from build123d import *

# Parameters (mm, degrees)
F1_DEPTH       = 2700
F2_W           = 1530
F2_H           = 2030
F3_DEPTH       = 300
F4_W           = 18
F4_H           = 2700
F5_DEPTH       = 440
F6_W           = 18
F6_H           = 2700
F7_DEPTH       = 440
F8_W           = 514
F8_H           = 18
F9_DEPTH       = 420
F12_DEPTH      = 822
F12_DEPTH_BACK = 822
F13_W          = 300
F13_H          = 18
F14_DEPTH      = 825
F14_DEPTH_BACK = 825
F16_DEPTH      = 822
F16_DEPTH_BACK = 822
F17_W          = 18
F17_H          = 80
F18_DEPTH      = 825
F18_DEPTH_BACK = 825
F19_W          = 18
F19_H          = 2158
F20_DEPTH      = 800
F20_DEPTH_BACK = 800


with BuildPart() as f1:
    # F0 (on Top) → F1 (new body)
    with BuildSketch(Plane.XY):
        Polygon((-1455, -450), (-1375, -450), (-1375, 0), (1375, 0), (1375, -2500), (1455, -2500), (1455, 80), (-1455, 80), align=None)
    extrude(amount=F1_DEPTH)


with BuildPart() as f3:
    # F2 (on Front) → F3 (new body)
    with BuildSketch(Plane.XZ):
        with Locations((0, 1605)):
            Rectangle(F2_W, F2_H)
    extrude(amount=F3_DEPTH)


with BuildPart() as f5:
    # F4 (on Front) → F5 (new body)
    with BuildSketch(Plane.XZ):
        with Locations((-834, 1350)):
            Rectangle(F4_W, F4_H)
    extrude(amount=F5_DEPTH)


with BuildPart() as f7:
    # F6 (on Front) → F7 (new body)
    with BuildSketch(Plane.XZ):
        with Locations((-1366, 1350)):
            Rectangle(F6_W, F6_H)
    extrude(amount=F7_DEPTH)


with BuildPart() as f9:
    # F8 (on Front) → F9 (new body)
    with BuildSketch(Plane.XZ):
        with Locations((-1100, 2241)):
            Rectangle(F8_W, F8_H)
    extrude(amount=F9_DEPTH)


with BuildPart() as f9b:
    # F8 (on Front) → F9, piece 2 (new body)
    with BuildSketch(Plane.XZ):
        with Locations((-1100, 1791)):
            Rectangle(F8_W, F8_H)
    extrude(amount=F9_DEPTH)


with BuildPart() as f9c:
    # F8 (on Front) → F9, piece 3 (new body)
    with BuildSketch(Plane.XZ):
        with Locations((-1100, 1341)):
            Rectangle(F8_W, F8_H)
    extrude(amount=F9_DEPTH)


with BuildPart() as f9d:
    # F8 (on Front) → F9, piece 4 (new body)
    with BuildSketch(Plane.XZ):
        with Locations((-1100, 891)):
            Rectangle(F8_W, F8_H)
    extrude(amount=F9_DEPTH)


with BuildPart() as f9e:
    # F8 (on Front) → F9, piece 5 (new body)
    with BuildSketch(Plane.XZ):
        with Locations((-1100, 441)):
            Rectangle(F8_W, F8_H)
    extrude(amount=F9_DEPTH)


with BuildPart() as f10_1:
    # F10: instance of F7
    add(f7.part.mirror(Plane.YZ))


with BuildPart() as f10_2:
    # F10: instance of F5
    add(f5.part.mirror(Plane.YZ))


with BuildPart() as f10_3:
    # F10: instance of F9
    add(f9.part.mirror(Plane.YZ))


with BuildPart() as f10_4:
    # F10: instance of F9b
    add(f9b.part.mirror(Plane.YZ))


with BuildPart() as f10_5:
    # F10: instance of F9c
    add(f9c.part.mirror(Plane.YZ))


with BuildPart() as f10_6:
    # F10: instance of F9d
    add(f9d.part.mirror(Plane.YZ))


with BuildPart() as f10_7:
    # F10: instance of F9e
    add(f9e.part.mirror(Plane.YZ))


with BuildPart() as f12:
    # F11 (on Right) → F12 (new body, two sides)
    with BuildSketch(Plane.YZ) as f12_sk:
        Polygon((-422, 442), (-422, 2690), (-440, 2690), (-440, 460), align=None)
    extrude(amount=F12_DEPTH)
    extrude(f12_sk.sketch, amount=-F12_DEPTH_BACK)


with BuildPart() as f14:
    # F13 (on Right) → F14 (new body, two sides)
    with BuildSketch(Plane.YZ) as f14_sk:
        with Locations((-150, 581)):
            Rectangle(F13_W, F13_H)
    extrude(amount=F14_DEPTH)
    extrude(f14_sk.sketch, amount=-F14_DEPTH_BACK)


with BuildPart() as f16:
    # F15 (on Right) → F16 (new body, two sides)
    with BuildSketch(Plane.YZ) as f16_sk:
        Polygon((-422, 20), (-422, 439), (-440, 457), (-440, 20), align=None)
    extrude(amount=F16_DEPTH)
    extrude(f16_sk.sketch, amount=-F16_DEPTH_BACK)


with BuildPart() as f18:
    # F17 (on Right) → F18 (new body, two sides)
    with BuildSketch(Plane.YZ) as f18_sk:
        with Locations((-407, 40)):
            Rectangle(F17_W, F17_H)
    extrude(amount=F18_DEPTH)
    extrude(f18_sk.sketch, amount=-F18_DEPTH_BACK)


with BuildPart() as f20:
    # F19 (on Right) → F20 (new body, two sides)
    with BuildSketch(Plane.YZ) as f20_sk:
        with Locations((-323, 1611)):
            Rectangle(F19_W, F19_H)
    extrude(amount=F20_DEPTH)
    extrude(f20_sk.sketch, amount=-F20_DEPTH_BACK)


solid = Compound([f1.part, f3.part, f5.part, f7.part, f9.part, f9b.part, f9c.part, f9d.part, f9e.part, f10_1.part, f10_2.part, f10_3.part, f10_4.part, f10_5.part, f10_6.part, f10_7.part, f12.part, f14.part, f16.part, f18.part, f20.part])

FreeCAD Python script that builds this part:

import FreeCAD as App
import Part
import Sketcher
from FreeCAD import Vector


def add_polygon(sketch, points):
    """Adds a closed chain of lines whose ends are joined by coincident constraints."""
    first, n = sketch.GeometryCount, len(points)
    for a, b in zip(points, points[1:] + points[:1]):
        sketch.addGeometry(Part.LineSegment(App.Vector(*a, 0), App.Vector(*b, 0)), False)
    for i in range(n):
        sketch.addConstraint(Sketcher.Constraint("Coincident", first + i, 2, first + (i + 1) % n, 1))

doc = App.newDocument("Part")
body = doc.addObject("PartDesign::Body", "Body")

sketch1 = doc.addObject("Sketcher::SketchObject", "Sketch")
body.addObject(sketch1)
sketch1.AttachmentSupport = (doc.XY_Plane, [""])
sketch1.MapMode = "FlatFace"
add_polygon(sketch1, [(-1455, -450), (-1375, -450), (-1375, 0), (1375, 0), (1375, -2500), (1455, -2500), (1455, 80), (-1455, 80)])
sketch1.addConstraint(Sketcher.Constraint("Horizontal", 0))
sketch1.addConstraint(Sketcher.Constraint("Vertical", 1))
sketch1.addConstraint(Sketcher.Constraint("Horizontal", 2))
sketch1.addConstraint(Sketcher.Constraint("Vertical", 3))
sketch1.addConstraint(Sketcher.Constraint("Horizontal", 4))
sketch1.addConstraint(Sketcher.Constraint("Vertical", 5))
sketch1.addConstraint(Sketcher.Constraint("Horizontal", 6))
sketch1.addConstraint(Sketcher.Constraint("Vertical", 7))
sketch1.addConstraint(Sketcher.Constraint("Symmetric", 1, 2, 2, 2, -1, 1))
sketch1.addConstraint(Sketcher.Constraint("Equal", 0, 4))
sketch1.addConstraint(Sketcher.Constraint("DistanceX", 0, 1, 0, 2, 80.0))
sketch1.addConstraint(Sketcher.Constraint("DistanceX", 2, 1, 2, 2, 2750.0))
sketch1.addConstraint(Sketcher.Constraint("DistanceY", 1, 1, 1, 2, 450.0))
sketch1.addConstraint(Sketcher.Constraint("DistanceY", 3, 2, 3, 1, 2500.0))
sketch1.addConstraint(Sketcher.Constraint("DistanceY", 5, 1, 5, 2, 2580.0))
pad1 = doc.addObject("PartDesign::Pad", "Pad")
body.addObject(pad1)
pad1.Profile = sketch1
pad1.Length = 2700
body2 = doc.addObject("PartDesign::Body", "Body001")

sketch2 = doc.addObject("Sketcher::SketchObject", "Sketch001")
body2.addObject(sketch2)
sketch2.AttachmentSupport = (doc.getObject("XZ_Plane001"), [""])
sketch2.MapMode = "FlatFace"
add_polygon(sketch2, [(-765, 2620), (-765, 590), (765, 590), (765, 2620)])
sketch2.addConstraint(Sketcher.Constraint("Vertical", 0))
sketch2.addConstraint(Sketcher.Constraint("Horizontal", 1))
sketch2.addConstraint(Sketcher.Constraint("Vertical", 2))
sketch2.addConstraint(Sketcher.Constraint("Horizontal", 3))
sketch2.addConstraint(Sketcher.Constraint("DistanceX", 1, 1, 1, 2, 1530.0))
sketch2.addConstraint(Sketcher.Constraint("DistanceY", 0, 2, 0, 1, 2030.0))
sketch2.addConstraint(Sketcher.Constraint("DistanceX", 0, 2, -1, 1, 765.0))
sketch2.addConstraint(Sketcher.Constraint("DistanceY", -1, 1, 0, 2, 590.0))
pad2 = doc.addObject("PartDesign::Pad", "Pad001")
body2.addObject(pad2)
pad2.Profile = sketch2
pad2.Length = 300
body3 = doc.addObject("PartDesign::Body", "Body002")

sketch3 = doc.addObject("Sketcher::SketchObject", "Sketch002")
body3.addObject(sketch3)
sketch3.AttachmentSupport = (doc.getObject("XZ_Plane002"), [""])
sketch3.MapMode = "FlatFace"
add_polygon(sketch3, [(-843, 2700), (-843, 0), (-825, 0), (-825, 2700)])
sketch3.addConstraint(Sketcher.Constraint("Vertical", 0))
sketch3.addConstraint(Sketcher.Constraint("Horizontal", 1))
sketch3.addConstraint(Sketcher.Constraint("Vertical", 2))
sketch3.addConstraint(Sketcher.Constraint("Horizontal", 3))
sketch3.addConstraint(Sketcher.Constraint("PointOnObject", 0, 2, -1))
sketch3.addConstraint(Sketcher.Constraint("DistanceX", 1, 1, 1, 2, 18.0))
sketch3.addConstraint(Sketcher.Constraint("DistanceY", 0, 2, 0, 1, 2700.0))
sketch3.addConstraint(Sketcher.Constraint("DistanceX", 0, 2, -1, 1, 843.0))
pad3 = doc.addObject("PartDesign::Pad", "Pad002")
body3.addObject(pad3)
pad3.Profile = sketch3
pad3.Length = 440
body4 = doc.addObject("PartDesign::Body", "Body003")

sketch4 = doc.addObject("Sketcher::SketchObject", "Sketch003")
body4.addObject(sketch4)
sketch4.AttachmentSupport = (doc.getObject("XZ_Plane003"), [""])
sketch4.MapMode = "FlatFace"
add_polygon(sketch4, [(-1375, 2700), (-1375, 0), (-1357, 0), (-1357, 2700)])
sketch4.addConstraint(Sketcher.Constraint("Vertical", 0))
sketch4.addConstraint(Sketcher.Constraint("Horizontal", 1))
sketch4.addConstraint(Sketcher.Constraint("Vertical", 2))
sketch4.addConstraint(Sketcher.Constraint("Horizontal", 3))
sketch4.addConstraint(Sketcher.Constraint("PointOnObject", 0, 2, -1))
sketch4.addConstraint(Sketcher.Constraint("DistanceX", 1, 1, 1, 2, 18.0))
sketch4.addConstraint(Sketcher.Constraint("DistanceY", 0, 2, 0, 1, 2700.0))
sketch4.addConstraint(Sketcher.Constraint("DistanceX", 0, 2, -1, 1, 1375.0))
pad4 = doc.addObject("PartDesign::Pad", "Pad003")
body4.addObject(pad4)
pad4.Profile = sketch4
pad4.Length = 440
body5 = doc.addObject("PartDesign::Body", "Body004")

sketch5 = doc.addObject("Sketcher::SketchObject", "Sketch004")
body5.addObject(sketch5)
sketch5.AttachmentSupport = (doc.getObject("XZ_Plane004"), [""])
sketch5.MapMode = "FlatFace"
add_polygon(sketch5, [(-1357, 2250), (-1357, 2232), (-843, 2232), (-843, 2250)])
sketch5.addConstraint(Sketcher.Constraint("Vertical", 0))
sketch5.addConstraint(Sketcher.Constraint("Horizontal", 1))
sketch5.addConstraint(Sketcher.Constraint("Vertical", 2))
sketch5.addConstraint(Sketcher.Constraint("Horizontal", 3))
sketch5.addConstraint(Sketcher.Constraint("DistanceX", 1, 1, 1, 2, 514.0))
sketch5.addConstraint(Sketcher.Constraint("DistanceY", 0, 2, 0, 1, 18.0))
sketch5.addConstraint(Sketcher.Constraint("DistanceX", 0, 2, -1, 1, 1357.0))
sketch5.addConstraint(Sketcher.Constraint("DistanceY", -1, 1, 0, 2, 2232.0))
pad5 = doc.addObject("PartDesign::Pad", "Pad004")
body5.addObject(pad5)
pad5.Profile = sketch5
pad5.Length = 420
body6 = doc.addObject("PartDesign::Body", "Body005")

sketch6 = doc.addObject("Sketcher::SketchObject", "Sketch005")
body6.addObject(sketch6)
sketch6.AttachmentSupport = (doc.getObject("XZ_Plane005"), [""])
sketch6.MapMode = "FlatFace"
add_polygon(sketch6, [(-1357, 1800), (-1357, 1782), (-843, 1782), (-843, 1800)])
sketch6.addConstraint(Sketcher.Constraint("Vertical", 0))
sketch6.addConstraint(Sketcher.Constraint("Horizontal", 1))
sketch6.addConstraint(Sketcher.Constraint("Vertical", 2))
sketch6.addConstraint(Sketcher.Constraint("Horizontal", 3))
sketch6.addConstraint(Sketcher.Constraint("DistanceX", 1, 1, 1, 2, 514.0))
sketch6.addConstraint(Sketcher.Constraint("DistanceY", 0, 2, 0, 1, 18.0))
sketch6.addConstraint(Sketcher.Constraint("DistanceX", 0, 2, -1, 1, 1357.0))
sketch6.addConstraint(Sketcher.Constraint("DistanceY", -1, 1, 0, 2, 1782.0))
pad6 = doc.addObject("PartDesign::Pad", "Pad005")
body6.addObject(pad6)
pad6.Profile = sketch6
pad6.Length = 420
body7 = doc.addObject("PartDesign::Body", "Body006")

sketch7 = doc.addObject("Sketcher::SketchObject", "Sketch006")
body7.addObject(sketch7)
sketch7.AttachmentSupport = (doc.getObject("XZ_Plane006"), [""])
sketch7.MapMode = "FlatFace"
add_polygon(sketch7, [(-1357, 1350), (-1357, 1332), (-843, 1332), (-843, 1350)])
sketch7.addConstraint(Sketcher.Constraint("Vertical", 0))
sketch7.addConstraint(Sketcher.Constraint("Horizontal", 1))
sketch7.addConstraint(Sketcher.Constraint("Vertical", 2))
sketch7.addConstraint(Sketcher.Constraint("Horizontal", 3))
sketch7.addConstraint(Sketcher.Constraint("DistanceX", 1, 1, 1, 2, 514.0))
sketch7.addConstraint(Sketcher.Constraint("DistanceY", 0, 2, 0, 1, 18.0))
sketch7.addConstraint(Sketcher.Constraint("DistanceX", 0, 2, -1, 1, 1357.0))
sketch7.addConstraint(Sketcher.Constraint("DistanceY", -1, 1, 0, 2, 1332.0))
pad7 = doc.addObject("PartDesign::Pad", "Pad006")
body7.addObject(pad7)
pad7.Profile = sketch7
pad7.Length = 420
body8 = doc.addObject("PartDesign::Body", "Body007")

sketch8 = doc.addObject("Sketcher::SketchObject", "Sketch007")
body8.addObject(sketch8)
sketch8.AttachmentSupport = (doc.getObject("XZ_Plane007"), [""])
sketch8.MapMode = "FlatFace"
add_polygon(sketch8, [(-1357, 900), (-1357, 882), (-843, 882), (-843, 900)])
sketch8.addConstraint(Sketcher.Constraint("Vertical", 0))
sketch8.addConstraint(Sketcher.Constraint("Horizontal", 1))
sketch8.addConstraint(Sketcher.Constraint("Vertical", 2))
sketch8.addConstraint(Sketcher.Constraint("Horizontal", 3))
sketch8.addConstraint(Sketcher.Constraint("DistanceX", 1, 1, 1, 2, 514.0))
sketch8.addConstraint(Sketcher.Constraint("DistanceY", 0, 2, 0, 1, 18.0))
sketch8.addConstraint(Sketcher.Constraint("DistanceX", 0, 2, -1, 1, 1357.0))
sketch8.addConstraint(Sketcher.Constraint("DistanceY", -1, 1, 0, 2, 882.0))
pad8 = doc.addObject("PartDesign::Pad", "Pad007")
body8.addObject(pad8)
pad8.Profile = sketch8
pad8.Length = 420
body9 = doc.addObject("PartDesign::Body", "Body008")

sketch9 = doc.addObject("Sketcher::SketchObject", "Sketch008")
body9.addObject(sketch9)
sketch9.AttachmentSupport = (doc.getObject("XZ_Plane008"), [""])
sketch9.MapMode = "FlatFace"
add_polygon(sketch9, [(-1357, 450), (-1357, 432), (-843, 432), (-843, 450)])
sketch9.addConstraint(Sketcher.Constraint("Vertical", 0))
sketch9.addConstraint(Sketcher.Constraint("Horizontal", 1))
sketch9.addConstraint(Sketcher.Constraint("Vertical", 2))
sketch9.addConstraint(Sketcher.Constraint("Horizontal", 3))
sketch9.addConstraint(Sketcher.Constraint("DistanceX", 1, 1, 1, 2, 514.0))
sketch9.addConstraint(Sketcher.Constraint("DistanceY", 0, 2, 0, 1, 18.0))
sketch9.addConstraint(Sketcher.Constraint("DistanceX", 0, 2, -1, 1, 1357.0))
sketch9.addConstraint(Sketcher.Constraint("DistanceY", -1, 1, 0, 2, 432.0))
pad9 = doc.addObject("PartDesign::Pad", "Pad008")
body9.addObject(pad9)
pad9.Profile = sketch9
pad9.Length = 420
body10 = doc.addObject("PartDesign::Body", "Body009")
doc.recompute()

mirroring = doc.addObject("Part::Mirroring", "Mirroring")
mirroring.Source = body4
mirroring.Base = Vector(0, 0, 0)
mirroring.Normal = Vector(1, 0, 0)
body10.BaseFeature = mirroring
doc.recompute()
body11 = doc.addObject("PartDesign::Body", "Body010")
doc.recompute()

mirroring2 = doc.addObject("Part::Mirroring", "Mirroring001")
mirroring2.Source = body3
mirroring2.Base = Vector(0, 0, 0)
mirroring2.Normal = Vector(1, 0, 0)
body11.BaseFeature = mirroring2
doc.recompute()
body12 = doc.addObject("PartDesign::Body", "Body011")
doc.recompute()

mirroring3 = doc.addObject("Part::Mirroring", "Mirroring002")
mirroring3.Source = body5
mirroring3.Base = Vector(0, 0, 0)
mirroring3.Normal = Vector(1, 0, 0)
body12.BaseFeature = mirroring3
doc.recompute()
body13 = doc.addObject("PartDesign::Body", "Body012")
doc.recompute()

mirroring4 = doc.addObject("Part::Mirroring", "Mirroring003")
mirroring4.Source = body6
mirroring4.Base = Vector(0, 0, 0)
mirroring4.Normal = Vector(1, 0, 0)
body13.BaseFeature = mirroring4
doc.recompute()
body14 = doc.addObject("PartDesign::Body", "Body013")
doc.recompute()

mirroring5 = doc.addObject("Part::Mirroring", "Mirroring004")
mirroring5.Source = body7
mirroring5.Base = Vector(0, 0, 0)
mirroring5.Normal = Vector(1, 0, 0)
body14.BaseFeature = mirroring5
doc.recompute()
body15 = doc.addObject("PartDesign::Body", "Body014")
doc.recompute()

mirroring6 = doc.addObject("Part::Mirroring", "Mirroring005")
mirroring6.Source = body8
mirroring6.Base = Vector(0, 0, 0)
mirroring6.Normal = Vector(1, 0, 0)
body15.BaseFeature = mirroring6
doc.recompute()
body16 = doc.addObject("PartDesign::Body", "Body015")
doc.recompute()

mirroring7 = doc.addObject("Part::Mirroring", "Mirroring006")
mirroring7.Source = body9
mirroring7.Base = Vector(0, 0, 0)
mirroring7.Normal = Vector(1, 0, 0)
body16.BaseFeature = mirroring7
doc.recompute()
body17 = doc.addObject("PartDesign::Body", "Body016")

sketch10 = doc.addObject("Sketcher::SketchObject", "Sketch009")
body17.addObject(sketch10)
sketch10.AttachmentSupport = (doc.getObject("YZ_Plane016"), [""])
sketch10.MapMode = "FlatFace"
add_polygon(sketch10, [(-422, 442), (-422, 2690), (-440, 2690), (-440, 460)])
sketch10.addConstraint(Sketcher.Constraint("Vertical", 0))
sketch10.addConstraint(Sketcher.Constraint("Horizontal", 1))
sketch10.addConstraint(Sketcher.Constraint("Vertical", 2))
sketch10.addConstraint(Sketcher.Constraint("DistanceX", 1, 2, 1, 1, 18.0))
sketch10.addConstraint(Sketcher.Constraint("DistanceY", 0, 1, 0, 2, 2248.0))
sketch10.addConstraint(Sketcher.Constraint("DistanceY", 2, 2, 2, 1, 2230.0))
sketch10.addConstraint(Sketcher.Constraint("DistanceX", 0, 2, -1, 1, 422.0))
sketch10.addConstraint(Sketcher.Constraint("DistanceY", -1, 1, 0, 2, 2690.0))
pad10 = doc.addObject("PartDesign::Pad", "Pad009")
body17.addObject(pad10)
pad10.Profile = sketch10
pad10.Type = "TwoLengths"
pad10.Length = 822
pad10.Length2 = 822
body18 = doc.addObject("PartDesign::Body", "Body017")

sketch11 = doc.addObject("Sketcher::SketchObject", "Sketch010")
body18.addObject(sketch11)
sketch11.AttachmentSupport = (doc.getObject("YZ_Plane017"), [""])
sketch11.MapMode = "FlatFace"
add_polygon(sketch11, [(-300, 590), (-300, 572), (0, 572), (0, 590)])
sketch11.addConstraint(Sketcher.Constraint("Vertical", 0))
sketch11.addConstraint(Sketcher.Constraint("Horizontal", 1))
sketch11.addConstraint(Sketcher.Constraint("Vertical", 2))
sketch11.addConstraint(Sketcher.Constraint("Horizontal", 3))
sketch11.addConstraint(Sketcher.Constraint("PointOnObject", 1, 2, -2))
sketch11.addConstraint(Sketcher.Constraint("DistanceX", 1, 1, 1, 2, 300.0))
sketch11.addConstraint(Sketcher.Constraint("DistanceY", 0, 2, 0, 1, 18.0))
sketch11.addConstraint(Sketcher.Constraint("DistanceY", -1, 1, 0, 2, 572.0))
pad11 = doc.addObject("PartDesign::Pad", "Pad010")
body18.addObject(pad11)
pad11.Profile = sketch11
pad11.Type = "TwoLengths"
pad11.Length = 825
pad11.Length2 = 825
body19 = doc.addObject("PartDesign::Body", "Body018")

sketch12 = doc.addObject("Sketcher::SketchObject", "Sketch011")
body19.addObject(sketch12)
sketch12.AttachmentSupport = (doc.getObject("YZ_Plane018"), [""])
sketch12.MapMode = "FlatFace"
add_polygon(sketch12, [(-422, 20), (-422, 439), (-440, 457), (-440, 20)])
sketch12.addConstraint(Sketcher.Constraint("Vertical", 0))
sketch12.addConstraint(Sketcher.Constraint("Vertical", 2))
sketch12.addConstraint(Sketcher.Constraint("Horizontal", 3))
sketch12.addConstraint(Sketcher.Constraint("DistanceX", 3, 1, 3, 2, 18.0))
sketch12.addConstraint(Sketcher.Constraint("DistanceY", 0, 1, 0, 2, 419.0))
sketch12.addConstraint(Sketcher.Constraint("DistanceY", 2, 2, 2, 1, 437.0))
sketch12.addConstraint(Sketcher.Constraint("DistanceX", 0, 2, -1, 1, 422.0))
sketch12.addConstraint(Sketcher.Constraint("DistanceY", -1, 1, 0, 2, 439.0))
pad12 = doc.addObject("PartDesign::Pad", "Pad011")
body19.addObject(pad12)
pad12.Profile = sketch12
pad12.Type = "TwoLengths"
pad12.Length = 822
pad12.Length2 = 822
body20 = doc.addObject("PartDesign::Body", "Body019")

sketch13 = doc.addObject("Sketcher::SketchObject", "Sketch012")
body20.addObject(sketch13)
sketch13.AttachmentSupport = (doc.getObject("YZ_Plane019"), [""])
sketch13.MapMode = "FlatFace"
add_polygon(sketch13, [(-416, 80), (-416, 0), (-398, 0), (-398, 80)])
sketch13.addConstraint(Sketcher.Constraint("Vertical", 0))
sketch13.addConstraint(Sketcher.Constraint("Horizontal", 1))
sketch13.addConstraint(Sketcher.Constraint("Vertical", 2))
sketch13.addConstraint(Sketcher.Constraint("Horizontal", 3))
sketch13.addConstraint(Sketcher.Constraint("PointOnObject", 0, 2, -1))
sketch13.addConstraint(Sketcher.Constraint("DistanceX", 1, 1, 1, 2, 18.0))
sketch13.addConstraint(Sketcher.Constraint("DistanceY", 0, 2, 0, 1, 80.0))
sketch13.addConstraint(Sketcher.Constraint("DistanceX", 0, 2, -1, 1, 416.0))
pad13 = doc.addObject("PartDesign::Pad", "Pad012")
body20.addObject(pad13)
pad13.Profile = sketch13
pad13.Type = "TwoLengths"
pad13.Length = 825
pad13.Length2 = 825
body21 = doc.addObject("PartDesign::Body", "Body020")

sketch14 = doc.addObject("Sketcher::SketchObject", "Sketch013")
body21.addObject(sketch14)
sketch14.AttachmentSupport = (doc.getObject("YZ_Plane020"), [""])
sketch14.MapMode = "FlatFace"
add_polygon(sketch14, [(-332, 2690), (-332, 532), (-314, 532), (-314, 2690)])
sketch14.addConstraint(Sketcher.Constraint("Vertical", 0))
sketch14.addConstraint(Sketcher.Constraint("Horizontal", 1))
sketch14.addConstraint(Sketcher.Constraint("Vertical", 2))
sketch14.addConstraint(Sketcher.Constraint("Horizontal", 3))
sketch14.addConstraint(Sketcher.Constraint("DistanceX", 1, 1, 1, 2, 18.0))
sketch14.addConstraint(Sketcher.Constraint("DistanceY", 0, 2, 0, 1, 2158.0))
sketch14.addConstraint(Sketcher.Constraint("DistanceX", 0, 2, -1, 1, 332.0))
sketch14.addConstraint(Sketcher.Constraint("DistanceY", -1, 1, 0, 2, 532.0))
pad14 = doc.addObject("PartDesign::Pad", "Pad013")
body21.addObject(pad14)
pad14.Profile = sketch14
pad14.Type = "TwoLengths"
pad14.Length = 800
pad14.Length2 = 800

doc.recompute()
